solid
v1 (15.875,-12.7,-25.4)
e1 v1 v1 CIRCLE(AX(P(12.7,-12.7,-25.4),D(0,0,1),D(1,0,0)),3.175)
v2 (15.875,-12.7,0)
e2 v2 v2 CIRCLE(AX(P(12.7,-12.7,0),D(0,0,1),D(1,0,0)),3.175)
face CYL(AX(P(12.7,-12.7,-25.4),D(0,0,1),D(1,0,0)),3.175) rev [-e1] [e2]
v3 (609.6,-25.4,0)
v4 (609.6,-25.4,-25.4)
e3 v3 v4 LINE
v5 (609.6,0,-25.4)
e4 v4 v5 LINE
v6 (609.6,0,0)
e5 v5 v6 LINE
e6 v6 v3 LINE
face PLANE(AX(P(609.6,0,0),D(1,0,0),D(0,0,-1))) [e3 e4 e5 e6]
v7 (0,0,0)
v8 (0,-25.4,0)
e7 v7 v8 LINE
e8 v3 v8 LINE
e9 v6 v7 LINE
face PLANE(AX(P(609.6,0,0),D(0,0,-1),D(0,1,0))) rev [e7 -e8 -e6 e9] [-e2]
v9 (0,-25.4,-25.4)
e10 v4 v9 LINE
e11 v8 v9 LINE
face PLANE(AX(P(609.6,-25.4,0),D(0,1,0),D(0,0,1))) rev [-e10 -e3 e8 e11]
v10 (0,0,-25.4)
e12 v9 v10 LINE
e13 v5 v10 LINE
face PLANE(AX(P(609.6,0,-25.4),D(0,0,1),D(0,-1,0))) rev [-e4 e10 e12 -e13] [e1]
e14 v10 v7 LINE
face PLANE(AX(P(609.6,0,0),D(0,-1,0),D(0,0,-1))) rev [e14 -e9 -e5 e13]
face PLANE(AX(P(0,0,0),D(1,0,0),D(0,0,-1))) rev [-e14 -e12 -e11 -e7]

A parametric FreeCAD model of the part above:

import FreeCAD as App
import Part
import Sketcher
Q = App.Units.Quantity

doc = App.newDocument("Part")
params = doc.addObject("Spreadsheet::Sheet", "Params")
for row, (alias, value) in enumerate([
    ("sketch1_width", "1 in"),
    ("pad1_length", "24 in"),
    ("sketch2_diameter", "0.25 in"),
], start=1):
    params.set(f"A{row}", alias)
    params.set(f"B{row}", "=" + value)
    params.setAlias(f"B{row}", alias)

body = doc.addObject("PartDesign::Body", "Body")

# Sketch on YZ plane
sketch1 = doc.addObject("Sketcher::SketchObject", "Sketch")
body.addObject(sketch1)
sketch1.AttachmentSupport = (doc.YZ_Plane, [""])
sketch1.MapMode = "FlatFace"
sketch1.addGeometry(Part.LineSegment(App.Vector(0, 0, 0), App.Vector(-25, 0, 0)), False)
sketch1.addGeometry(Part.LineSegment(App.Vector(-25, 0, 0), App.Vector(-25, -25, 0)), False)
sketch1.addGeometry(Part.LineSegment(App.Vector(-25, -25, 0), App.Vector(0, -25, 0)), False)
sketch1.addGeometry(Part.LineSegment(App.Vector(0, -25, 0), App.Vector(0, 0, 0)), False)
sketch1.addConstraint(Sketcher.Constraint("Coincident", 0, 2, 1, 1))
sketch1.addConstraint(Sketcher.Constraint("Coincident", 1, 2, 2, 1))
sketch1.addConstraint(Sketcher.Constraint("Coincident", 2, 2, 3, 1))
sketch1.addConstraint(Sketcher.Constraint("Coincident", 3, 2, 0, 1))
sketch1.addConstraint(Sketcher.Constraint("Horizontal", 0))
sketch1.addConstraint(Sketcher.Constraint("Vertical", 1))
sketch1.addConstraint(Sketcher.Constraint("Horizontal", 2))
sketch1.addConstraint(Sketcher.Constraint("Vertical", 3))
sketch1.addConstraint(Sketcher.Constraint("Coincident", 3, 2, -1, 1))
sketch1.addConstraint(Sketcher.Constraint("Equal", 2, 1))
sketch1.addConstraint(Sketcher.Constraint("DistanceX", 0, 2, 0, 1, Q("1 in")))
sketch1.setExpression("Constraints[10]", "Params.sketch1_width")
pad1 = doc.addObject("PartDesign::Pad", "Pad")
body.addObject(pad1)
pad1.Profile = sketch1
pad1.setExpression("Length", "Params.pad1_length")

# Sketch on XY plane
sketch2 = doc.addObject("Sketcher::SketchObject", "Sketch001")
body.addObject(sketch2)
sketch2.AttachmentSupport = (doc.XY_Plane, [""])
sketch2.MapMode = "FlatFace"
sketch2.addGeometry(Part.Circle(App.Vector(12.7, -12.7, 0), App.Vector(0, 0, 1), 3.2), False)
sketch2.addConstraint(Sketcher.Constraint("Diameter", 0, Q("0.25 in")))
sketch2.addConstraint(Sketcher.Constraint("DistanceX", -1, 1, 0, 3, Q("0.5 in")))
sketch2.addConstraint(Sketcher.Constraint("DistanceY", 0, 3, -1, 1, Q("0.5 in")))
sketch2.setExpression("Constraints[0]", "Params.sketch2_diameter")
pocket1 = doc.addObject("PartDesign::Pocket", "Pocket")
body.addObject(pocket1)
pocket1.Profile = sketch2
pocket1.Type = "ThroughAll"

doc.recompute()
